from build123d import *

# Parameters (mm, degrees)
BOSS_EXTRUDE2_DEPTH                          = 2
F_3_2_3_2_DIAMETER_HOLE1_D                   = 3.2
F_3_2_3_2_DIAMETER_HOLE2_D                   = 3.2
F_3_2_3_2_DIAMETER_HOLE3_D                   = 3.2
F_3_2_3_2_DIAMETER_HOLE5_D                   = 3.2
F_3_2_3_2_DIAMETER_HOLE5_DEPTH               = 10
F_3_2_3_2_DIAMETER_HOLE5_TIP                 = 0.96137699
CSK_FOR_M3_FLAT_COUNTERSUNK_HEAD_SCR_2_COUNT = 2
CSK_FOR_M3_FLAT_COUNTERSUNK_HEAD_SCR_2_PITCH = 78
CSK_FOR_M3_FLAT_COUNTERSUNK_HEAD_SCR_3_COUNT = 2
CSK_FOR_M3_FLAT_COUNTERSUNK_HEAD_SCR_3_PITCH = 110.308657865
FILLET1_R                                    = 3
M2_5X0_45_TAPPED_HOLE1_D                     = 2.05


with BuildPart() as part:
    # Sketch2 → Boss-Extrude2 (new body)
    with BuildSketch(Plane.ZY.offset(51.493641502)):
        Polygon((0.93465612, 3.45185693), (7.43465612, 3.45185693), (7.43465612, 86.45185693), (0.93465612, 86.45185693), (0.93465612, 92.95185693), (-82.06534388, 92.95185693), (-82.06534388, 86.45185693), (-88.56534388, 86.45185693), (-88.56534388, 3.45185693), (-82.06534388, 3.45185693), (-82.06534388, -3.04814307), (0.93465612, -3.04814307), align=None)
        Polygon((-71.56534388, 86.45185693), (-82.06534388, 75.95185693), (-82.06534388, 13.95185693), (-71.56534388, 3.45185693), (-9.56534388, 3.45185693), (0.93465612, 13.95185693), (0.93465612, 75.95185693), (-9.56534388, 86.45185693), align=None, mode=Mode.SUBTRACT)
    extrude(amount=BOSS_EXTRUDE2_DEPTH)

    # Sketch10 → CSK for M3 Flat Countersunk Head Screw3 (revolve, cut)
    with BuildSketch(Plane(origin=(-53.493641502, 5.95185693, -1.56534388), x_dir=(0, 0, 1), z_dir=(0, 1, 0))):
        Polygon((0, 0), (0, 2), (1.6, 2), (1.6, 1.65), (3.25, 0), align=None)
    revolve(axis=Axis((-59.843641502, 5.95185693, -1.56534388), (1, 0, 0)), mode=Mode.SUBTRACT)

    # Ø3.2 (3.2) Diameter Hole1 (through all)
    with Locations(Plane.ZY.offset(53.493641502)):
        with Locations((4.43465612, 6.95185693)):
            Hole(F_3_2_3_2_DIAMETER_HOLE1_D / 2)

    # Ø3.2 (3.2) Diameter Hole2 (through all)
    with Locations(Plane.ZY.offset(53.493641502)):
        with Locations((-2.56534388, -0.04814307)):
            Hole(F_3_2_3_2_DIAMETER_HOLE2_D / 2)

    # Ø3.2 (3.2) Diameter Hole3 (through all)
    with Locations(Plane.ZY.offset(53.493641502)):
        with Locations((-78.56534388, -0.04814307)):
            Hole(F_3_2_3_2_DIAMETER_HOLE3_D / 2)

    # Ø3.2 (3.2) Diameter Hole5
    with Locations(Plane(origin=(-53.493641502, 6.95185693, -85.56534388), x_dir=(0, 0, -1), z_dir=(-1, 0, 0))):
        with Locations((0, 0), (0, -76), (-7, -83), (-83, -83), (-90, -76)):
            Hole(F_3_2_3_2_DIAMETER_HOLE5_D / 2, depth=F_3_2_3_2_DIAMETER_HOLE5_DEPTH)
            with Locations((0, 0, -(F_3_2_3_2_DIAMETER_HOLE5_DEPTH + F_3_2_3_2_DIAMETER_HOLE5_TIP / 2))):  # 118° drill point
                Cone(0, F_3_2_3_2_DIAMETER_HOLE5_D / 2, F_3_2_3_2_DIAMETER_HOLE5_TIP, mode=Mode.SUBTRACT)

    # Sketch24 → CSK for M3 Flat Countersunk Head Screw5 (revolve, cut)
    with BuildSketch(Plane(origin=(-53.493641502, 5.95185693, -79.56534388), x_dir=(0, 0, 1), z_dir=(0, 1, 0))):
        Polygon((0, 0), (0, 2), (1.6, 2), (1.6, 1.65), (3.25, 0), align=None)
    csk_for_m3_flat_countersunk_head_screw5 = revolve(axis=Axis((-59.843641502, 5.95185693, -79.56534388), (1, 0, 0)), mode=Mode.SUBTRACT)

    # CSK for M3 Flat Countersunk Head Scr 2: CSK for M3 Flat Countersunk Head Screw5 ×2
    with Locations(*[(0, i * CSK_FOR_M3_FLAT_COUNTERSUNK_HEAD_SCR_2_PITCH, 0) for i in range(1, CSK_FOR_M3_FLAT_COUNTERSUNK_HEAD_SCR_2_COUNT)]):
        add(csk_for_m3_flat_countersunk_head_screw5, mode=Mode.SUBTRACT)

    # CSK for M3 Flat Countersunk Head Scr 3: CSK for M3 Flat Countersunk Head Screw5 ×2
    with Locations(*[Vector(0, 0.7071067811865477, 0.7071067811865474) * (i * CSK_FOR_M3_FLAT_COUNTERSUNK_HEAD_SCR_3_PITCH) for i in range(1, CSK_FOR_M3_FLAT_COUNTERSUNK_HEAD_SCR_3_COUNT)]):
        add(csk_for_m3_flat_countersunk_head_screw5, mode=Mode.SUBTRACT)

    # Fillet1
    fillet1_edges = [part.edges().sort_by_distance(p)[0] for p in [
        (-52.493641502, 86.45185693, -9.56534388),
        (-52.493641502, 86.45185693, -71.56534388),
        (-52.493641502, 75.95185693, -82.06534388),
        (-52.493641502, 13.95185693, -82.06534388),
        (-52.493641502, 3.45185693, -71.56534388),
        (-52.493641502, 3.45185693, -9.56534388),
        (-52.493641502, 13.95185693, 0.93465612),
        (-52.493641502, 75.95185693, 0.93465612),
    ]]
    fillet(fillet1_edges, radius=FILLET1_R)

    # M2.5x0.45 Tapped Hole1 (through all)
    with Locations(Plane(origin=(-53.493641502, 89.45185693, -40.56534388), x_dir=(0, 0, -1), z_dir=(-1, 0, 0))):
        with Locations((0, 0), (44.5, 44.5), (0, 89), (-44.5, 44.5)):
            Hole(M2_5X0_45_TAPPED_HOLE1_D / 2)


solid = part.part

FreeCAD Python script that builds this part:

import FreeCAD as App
import Part
import Sketcher

V = App.Vector
Q = App.Units.Quantity


def edges_at(feature, points):
    """Names of the edges that pass closest to the given points."""
    edges = feature.Shape.Edges
    near = lambda p: min(range(len(edges)), key=lambda i: edges[i].distToShape(Part.Vertex(*p))[0])
    return sorted({f"Edge{near(p) + 1}" for p in points})

doc = App.newDocument("Part")
body = doc.addObject("PartDesign::Body", "Body")

sketch1 = doc.addObject("Sketcher::SketchObject", "Sketch")
body.addObject(sketch1)
sketch1.AttachmentSupport = (doc.YZ_Plane, [""])
sketch1.MapMode = "FlatFace"
sketch1.AttachmentOffset = App.Placement(V(0, 0, -51.493642), App.Rotation())
sketch1.addGeometry(Part.LineSegment(V(3, 1, 0), V(3, 7, 0)), False)
sketch1.addGeometry(Part.LineSegment(V(3, 7, 0), V(86, 7, 0)), False)
sketch1.addGeometry(Part.LineSegment(V(86, 7, 0), V(86, 1, 0)), False)
sketch1.addGeometry(Part.LineSegment(V(86, 1, 0), V(93, 1, 0)), False)
sketch1.addGeometry(Part.LineSegment(V(93, 1, 0), V(93, -82, 0)), False)
sketch1.addGeometry(Part.LineSegment(V(93, -82, 0), V(86, -82, 0)), False)
sketch1.addGeometry(Part.LineSegment(V(86, -82, 0), V(86, -89, 0)), False)
sketch1.addGeometry(Part.LineSegment(V(86, -89, 0), V(3, -89, 0)), False)
sketch1.addGeometry(Part.LineSegment(V(3, -89, 0), V(3, -82, 0)), False)
sketch1.addGeometry(Part.LineSegment(V(3, -82, 0), V(-3, -82, 0)), False)
sketch1.addGeometry(Part.LineSegment(V(-3, -82, 0), V(-3, 1, 0)), False)
sketch1.addGeometry(Part.LineSegment(V(-3, 1, 0), V(3, 1, 0)), False)
sketch1.addGeometry(Part.LineSegment(V(76, -82, 0), V(86, -72, 0)), False)
sketch1.addGeometry(Part.LineSegment(V(86, -72, 0), V(86, -10, 0)), False)
sketch1.addGeometry(Part.LineSegment(V(86, -10, 0), V(76, 1, 0)), False)
sketch1.addGeometry(Part.LineSegment(V(76, 1, 0), V(14, 1, 0)), False)
sketch1.addGeometry(Part.LineSegment(V(14, 1, 0), V(3, -10, 0)), False)
sketch1.addGeometry(Part.LineSegment(V(3, -10, 0), V(3, -72, 0)), False)
sketch1.addGeometry(Part.LineSegment(V(3, -72, 0), V(14, -82, 0)), False)
sketch1.addGeometry(Part.LineSegment(V(14, -82, 0), V(76, -82, 0)), False)
sketch1.addConstraint(Sketcher.Constraint("Coincident", 0, 2, 1, 1))
sketch1.addConstraint(Sketcher.Constraint("Coincident", 1, 2, 2, 1))
sketch1.addConstraint(Sketcher.Constraint("Coincident", 2, 2, 3, 1))
sketch1.addConstraint(Sketcher.Constraint("Coincident", 3, 2, 4, 1))
sketch1.addConstraint(Sketcher.Constraint("Coincident", 4, 2, 5, 1))
sketch1.addConstraint(Sketcher.Constraint("Coincident", 5, 2, 6, 1))
sketch1.addConstraint(Sketcher.Constraint("Coincident", 6, 2, 7, 1))
sketch1.addConstraint(Sketcher.Constraint("Coincident", 7, 2, 8, 1))
sketch1.addConstraint(Sketcher.Constraint("Coincident", 8, 2, 9, 1))
sketch1.addConstraint(Sketcher.Constraint("Coincident", 9, 2, 10, 1))
sketch1.addConstraint(Sketcher.Constraint("Coincident", 10, 2, 11, 1))
sketch1.addConstraint(Sketcher.Constraint("Coincident", 11, 2, 0, 1))
sketch1.addConstraint(Sketcher.Constraint("Coincident", 12, 2, 13, 1))
sketch1.addConstraint(Sketcher.Constraint("Coincident", 13, 2, 14, 1))
sketch1.addConstraint(Sketcher.Constraint("Coincident", 14, 2, 15, 1))
sketch1.addConstraint(Sketcher.Constraint("Coincident", 15, 2, 16, 1))
sketch1.addConstraint(Sketcher.Constraint("Coincident", 16, 2, 17, 1))
sketch1.addConstraint(Sketcher.Constraint("Coincident", 17, 2, 18, 1))
sketch1.addConstraint(Sketcher.Constraint("Coincident", 18, 2, 19, 1))
sketch1.addConstraint(Sketcher.Constraint("Coincident", 19, 2, 12, 1))
sketch1.addConstraint(Sketcher.Constraint("Vertical", 0))
sketch1.addConstraint(Sketcher.Constraint("Horizontal", 1))
sketch1.addConstraint(Sketcher.Constraint("Vertical", 2))
sketch1.addConstraint(Sketcher.Constraint("Horizontal", 3))
sketch1.addConstraint(Sketcher.Constraint("Vertical", 4))
sketch1.addConstraint(Sketcher.Constraint("Horizontal", 5))
sketch1.addConstraint(Sketcher.Constraint("Vertical", 6))
sketch1.addConstraint(Sketcher.Constraint("Horizontal", 7))
sketch1.addConstraint(Sketcher.Constraint("Vertical", 8))
sketch1.addConstraint(Sketcher.Constraint("Horizontal", 9))
sketch1.addConstraint(Sketcher.Constraint("Vertical", 10))
sketch1.addConstraint(Sketcher.Constraint("Horizontal", 11))
sketch1.addConstraint(Sketcher.Constraint("Vertical", 13))
sketch1.addConstraint(Sketcher.Constraint("Horizontal", 15))
sketch1.addConstraint(Sketcher.Constraint("Vertical", 17))
sketch1.addConstraint(Sketcher.Constraint("Horizontal", 19))
sketch1.addConstraint(Sketcher.Constraint("Perpendicular", 12, 14))
sketch1.addConstraint(Sketcher.Constraint("Perpendicular", 14, 16))
sketch1.addConstraint(Sketcher.Constraint("Perpendicular", 16, 18))
sketch1.addConstraint(Sketcher.Constraint("Horizontal", 5, 2, 8, 2))
sketch1.addConstraint(Sketcher.Constraint("Horizontal", 3, 2, 10, 2))
sketch1.addConstraint(Sketcher.Constraint("Horizontal", 11, 2, 14, 2))
sketch1.addConstraint(Sketcher.Constraint("Horizontal", 13, 2, 16, 2))
sketch1.addConstraint(Sketcher.Constraint("Horizontal", 12, 2, 17, 2))
sketch1.addConstraint(Sketcher.Constraint("Horizontal", 9, 2, 18, 2))
sketch1.addConstraint(Sketcher.Constraint("Vertical", 2, 2, 5, 2))
sketch1.addConstraint(Sketcher.Constraint("Vertical", 0, 2, 7, 2))
sketch1.addConstraint(Sketcher.Constraint("Vertical", 6, 2, 12, 2))
sketch1.addConstraint(Sketcher.Constraint("Vertical", 11, 2, 16, 2))
sketch1.addConstraint(Sketcher.Constraint("Vertical", 15, 2, 18, 2))
sketch1.addConstraint(Sketcher.Constraint("Vertical", 14, 2, 19, 2))
sketch1.addConstraint(Sketcher.Constraint("Equal", 5, 9))
sketch1.addConstraint(Sketcher.Constraint("Equal", 11, 0))
sketch1.addConstraint(Sketcher.Constraint("Equal", 7, 4))
sketch1.addConstraint(Sketcher.Constraint("Equal", 2, 6))
sketch1.addConstraint(Sketcher.Constraint("DistanceX", 1, 1, 1, 2, 83.0))
sketch1.addConstraint(Sketcher.Constraint("DistanceX", 15, 2, 15, 1, 62.0))
sketch1.addConstraint(Sketcher.Constraint("DistanceX", 3, 1, 3, 2, 6.5))
sketch1.addConstraint(Sketcher.Constraint("DistanceX", -1, 1, 0, 2, 3.451857))
sketch1.addConstraint(Sketcher.Constraint("DistanceY", -1, 1, 0, 2, 7.434656))
pad1 = doc.addObject("PartDesign::Pad", "Pad")
body.addObject(pad1)
pad1.Profile = sketch1
pad1.Length = 2
pad1.Reversed = True

sketch2 = doc.addObject("Sketcher::SketchObject", "Sketch001")
body.addObject(sketch2)
sketch2.AttachmentSupport = (doc.XZ_Plane, [""])
sketch2.MapMode = "FlatFace"
sketch2.AttachmentOffset = App.Placement(V(0, 0, -5.951857), App.Rotation())
sketch2.addGeometry(Part.LineSegment(V(-51.49, -1.57, 0), V(-53.49, -1.57, 0)), False)
sketch2.addGeometry(Part.LineSegment(V(-53.49, -1.57, 0), V(-53.49, 1.68, 0)), False)
sketch2.addGeometry(Part.LineSegment(V(-53.49, 1.68, 0), V(-51.84, 0.03, 0)), False)
sketch2.addGeometry(Part.LineSegment(V(-51.84, 0.03, 0), V(-51.49, 0.03, 0)), False)
sketch2.addGeometry(Part.LineSegment(V(-51.49, 0.03, 0), V(-51.49, -1.57, 0)), False)
sketch2.addGeometry(Part.LineSegment(V(-53.49, -1.57, 0), V(-51.49, -1.57, 0)), True)
sketch2.addConstraint(Sketcher.Constraint("Coincident", 0, 2, 1, 1))
sketch2.addConstraint(Sketcher.Constraint("Coincident", 1, 2, 2, 1))
sketch2.addConstraint(Sketcher.Constraint("Coincident", 2, 2, 3, 1))
sketch2.addConstraint(Sketcher.Constraint("Coincident", 3, 2, 4, 1))
sketch2.addConstraint(Sketcher.Constraint("Coincident", 4, 2, 0, 1))
sketch2.addConstraint(Sketcher.Constraint("Horizontal", 0))
sketch2.addConstraint(Sketcher.Constraint("Vertical", 1))
sketch2.addConstraint(Sketcher.Constraint("Horizontal", 3))
sketch2.addConstraint(Sketcher.Constraint("Vertical", 4))
sketch2.addConstraint(Sketcher.Constraint("Horizontal", 5))
sketch2.addConstraint(Sketcher.Constraint("Coincident", 5, 1, 0, 2))
sketch2.addConstraint(Sketcher.Constraint("Vertical", 3, 2, 5, 2))
sketch2.addConstraint(Sketcher.Constraint("DistanceX", 0, 2, 0, 1, 2.0))
sketch2.addConstraint(Sketcher.Constraint("Angle", 2, Q("-45 deg")))
sketch2.addConstraint(Sketcher.Constraint("DistanceY", 4, 2, 4, 1, 1.6))
sketch2.addConstraint(Sketcher.Constraint("DistanceX", 3, 1, 3, 2, 0.35))
sketch2.addConstraint(Sketcher.Constraint("DistanceX", 0, 2, -1, 1, 53.493642))
sketch2.addConstraint(Sketcher.Constraint("DistanceY", 0, 2, -1, 1, 1.565344))
groove = doc.addObject("PartDesign::Groove", "Groove")
body.addObject(groove)
groove.Profile = sketch2
groove.ReferenceAxis = (sketch2, ["Axis0"])
groove.Angle = 360

sketch3 = doc.addObject("Sketcher::SketchObject", "Sketch002")
body.addObject(sketch3)
sketch3.AttachmentSupport = (doc.YZ_Plane, [""])
sketch3.MapMode = "FlatFace"
sketch3.AttachmentOffset = App.Placement(V(0, 0, -53.493642), App.Rotation())
sketch3.addGeometry(Part.Circle(V(7, 4.4, 0), V(0, 0, 1), 1.6), False)
sketch3.addConstraint(Sketcher.Constraint("Diameter", 0, 3.2))
sketch3.addConstraint(Sketcher.Constraint("DistanceX", -1, 1, 0, 3, 6.951857))
sketch3.addConstraint(Sketcher.Constraint("DistanceY", -1, 1, 0, 3, 4.434656))
doc.recompute()
hole = doc.addObject("PartDesign::Hole", "Hole")
body.addObject(hole)
hole.Profile = sketch3
hole.ThreadType = "None"
hole.Diameter = 3.2
hole.DepthType = "ThroughAll"
hole.Reversed = True

sketch4 = doc.addObject("Sketcher::SketchObject", "Sketch003")
body.addObject(sketch4)
sketch4.AttachmentSupport = (doc.YZ_Plane, [""])
sketch4.MapMode = "FlatFace"
sketch4.AttachmentOffset = App.Placement(V(0, 0, -53.493642), App.Rotation())
sketch4.addGeometry(Part.Circle(V(0, -2.6, 0), V(0, 0, 1), 1.6), False)
sketch4.addConstraint(Sketcher.Constraint("Diameter", 0, 3.2))
sketch4.addConstraint(Sketcher.Constraint("DistanceX", 0, 3, -1, 1, 0.048143))
sketch4.addConstraint(Sketcher.Constraint("DistanceY", 0, 3, -1, 1, 2.565344))
doc.recompute()
hole2 = doc.addObject("PartDesign::Hole", "Hole001")
body.addObject(hole2)
hole2.Profile = sketch4
hole2.ThreadType = "None"
hole2.Diameter = 3.2
hole2.DepthType = "ThroughAll"
hole2.Reversed = True

sketch5 = doc.addObject("Sketcher::SketchObject", "Sketch004")
body.addObject(sketch5)
sketch5.AttachmentSupport = (doc.YZ_Plane, [""])
sketch5.MapMode = "FlatFace"
sketch5.AttachmentOffset = App.Placement(V(0, 0, -53.493642), App.Rotation())
sketch5.addGeometry(Part.Circle(V(0, -78.6, 0), V(0, 0, 1), 1.6), False)
sketch5.addConstraint(Sketcher.Constraint("Diameter", 0, 3.2))
sketch5.addConstraint(Sketcher.Constraint("DistanceX", 0, 3, -1, 1, 0.048143))
sketch5.addConstraint(Sketcher.Constraint("DistanceY", 0, 3, -1, 1, 78.565344))
doc.recompute()
hole3 = doc.addObject("PartDesign::Hole", "Hole002")
body.addObject(hole3)
hole3.Profile = sketch5
hole3.ThreadType = "None"
hole3.Diameter = 3.2
hole3.DepthType = "ThroughAll"
hole3.Reversed = True

sketch6 = doc.addObject("Sketcher::SketchObject", "Sketch005")
body.addObject(sketch6)
sketch6.AttachmentSupport = (doc.YZ_Plane, [""])
sketch6.MapMode = "FlatFace"
sketch6.AttachmentOffset = App.Placement(V(0, 0, -53.493642), App.Rotation())
sketch6.addGeometry(Part.Circle(V(7, -85.6, 0), V(0, 0, 1), 1.6), False)
sketch6.addGeometry(Part.Circle(V(83, -85.6, 0), V(0, 0, 1), 1.6), False)
sketch6.addGeometry(Part.Circle(V(90, -78.6, 0), V(0, 0, 1), 1.6), False)
sketch6.addGeometry(Part.Circle(V(90, -2.6, 0), V(0, 0, 1), 1.6), False)
sketch6.addGeometry(Part.Circle(V(83, 4.4, 0), V(0, 0, 1), 1.6), False)
sketch6.addConstraint(Sketcher.Constraint("Equal", 0, 1))
sketch6.addConstraint(Sketcher.Constraint("Equal", 1, 2))
sketch6.addConstraint(Sketcher.Constraint("Equal", 2, 3))
sketch6.addConstraint(Sketcher.Constraint("Equal", 3, 4))
sketch6.addConstraint(Sketcher.Constraint("Horizontal", 0, 3, 1, 3))
sketch6.addConstraint(Sketcher.Constraint("Vertical", 2, 3, 3, 3))
sketch6.addConstraint(Sketcher.Constraint("Vertical", 1, 3, 4, 3))
sketch6.addConstraint(Sketcher.Constraint("Diameter", 0, 3.2))
sketch6.addConstraint(Sketcher.Constraint("DistanceX", 0, 3, 1, 3, 76.0))
sketch6.addConstraint(Sketcher.Constraint("DistanceX", 1, 3, 2, 3, 7.0))
sketch6.addConstraint(Sketcher.Constraint("DistanceY", 1, 3, 2, 3, 7.0))
sketch6.addConstraint(Sketcher.Constraint("DistanceY", 2, 3, 3, 3, 76.0))
sketch6.addConstraint(Sketcher.Constraint("DistanceY", 3, 3, 4, 3, 7.0))
sketch6.addConstraint(Sketcher.Constraint("DistanceX", -1, 1, 0, 3, 6.951857))
sketch6.addConstraint(Sketcher.Constraint("DistanceY", 0, 3, -1, 1, 85.565344))
doc.recompute()
hole4 = doc.addObject("PartDesign::Hole", "Hole003")
body.addObject(hole4)
hole4.Profile = sketch6
hole4.ThreadType = "None"
hole4.Diameter = 3.2
hole4.DepthType = "Dimension"
hole4.Depth = 10
hole4.DrillPoint = "Angled"
hole4.DrillPointAngle = 118
hole4.Reversed = True

sketch7 = doc.addObject("Sketcher::SketchObject", "Sketch006")
body.addObject(sketch7)
sketch7.AttachmentSupport = (doc.XZ_Plane, [""])
sketch7.MapMode = "FlatFace"
sketch7.AttachmentOffset = App.Placement(V(0, 0, -5.951857), App.Rotation())
sketch7.addGeometry(Part.LineSegment(V(-51.49, -79.57, 0), V(-53.49, -79.57, 0)), False)
sketch7.addGeometry(Part.LineSegment(V(-53.49, -79.57, 0), V(-53.49, -76.32, 0)), False)
sketch7.addGeometry(Part.LineSegment(V(-53.49, -76.32, 0), V(-51.84, -77.97, 0)), False)
sketch7.addGeometry(Part.LineSegment(V(-51.84, -77.97, 0), V(-51.49, -77.97, 0)), False)
sketch7.addGeometry(Part.LineSegment(V(-51.49, -77.97, 0), V(-51.49, -79.57, 0)), False)
sketch7.addGeometry(Part.LineSegment(V(-53.49, -79.57, 0), V(-51.49, -79.57, 0)), True)
sketch7.addConstraint(Sketcher.Constraint("Coincident", 0, 2, 1, 1))
sketch7.addConstraint(Sketcher.Constraint("Coincident", 1, 2, 2, 1))
sketch7.addConstraint(Sketcher.Constraint("Coincident", 2, 2, 3, 1))
sketch7.addConstraint(Sketcher.Constraint("Coincident", 3, 2, 4, 1))
sketch7.addConstraint(Sketcher.Constraint("Coincident", 4, 2, 0, 1))
sketch7.addConstraint(Sketcher.Constraint("Horizontal", 0))
sketch7.addConstraint(Sketcher.Constraint("Vertical", 1))
sketch7.addConstraint(Sketcher.Constraint("Horizontal", 3))
sketch7.addConstraint(Sketcher.Constraint("Vertical", 4))
sketch7.addConstraint(Sketcher.Constraint("Horizontal", 5))
sketch7.addConstraint(Sketcher.Constraint("Coincident", 5, 1, 0, 2))
sketch7.addConstraint(Sketcher.Constraint("Vertical", 3, 2, 5, 2))
sketch7.addConstraint(Sketcher.Constraint("DistanceX", 0, 2, 0, 1, 2.0))
sketch7.addConstraint(Sketcher.Constraint("Angle", 2, Q("-45 deg")))
sketch7.addConstraint(Sketcher.Constraint("DistanceY", 4, 2, 4, 1, 1.6))
sketch7.addConstraint(Sketcher.Constraint("DistanceX", 3, 1, 3, 2, 0.35))
sketch7.addConstraint(Sketcher.Constraint("DistanceX", 0, 2, -1, 1, 53.493642))
sketch7.addConstraint(Sketcher.Constraint("DistanceY", 0, 2, -1, 1, 79.565344))
groove2 = doc.addObject("PartDesign::Groove", "Groove001")
body.addObject(groove2)
groove2.Profile = sketch7
groove2.ReferenceAxis = (sketch7, ["Axis0"])
groove2.Angle = 360
doc.recompute()

linearpattern = doc.addObject("PartDesign::LinearPattern", "LinearPattern")
body.addObject(linearpattern)
linearpattern.Originals = [groove2]
linearpattern.Direction = (doc.Y_Axis, [""])
linearpattern.Mode = "offset"
linearpattern.Offset = 78
linearpattern.Occurrences = 2
body.Tip = linearpattern
doc.recompute()

datumline = doc.addObject("PartDesign::Line", "DatumLine")
body.addObject(datumline)
datumline.Placement = App.Placement(V(0, 0, 0), App.Rotation(V(0, 0, 1), V(0, 0.707106781, 0.707106781)))
linearpattern2 = doc.addObject("PartDesign::LinearPattern", "LinearPattern001")
body.addObject(linearpattern2)
linearpattern2.Originals = [groove2]
linearpattern2.Direction = (datumline, [""])
linearpattern2.Mode = "offset"
linearpattern2.Offset = 110.308658
linearpattern2.Occurrences = 2
body.Tip = linearpattern2
doc.recompute()

fillet = doc.addObject("PartDesign::Fillet", "Fillet")
body.addObject(fillet)
fillet.Base = (linearpattern2, edges_at(linearpattern2, [
    (-52.494, 86.452, -9.565),
    (-52.494, 86.452, -71.565),
    (-52.494, 75.952, -82.065),
    (-52.494, 13.952, -82.065),
    (-52.494, 3.452, -71.565),
    (-52.494, 3.452, -9.565),
    (-52.494, 13.952, 0.935),
    (-52.494, 75.952, 0.935),
]))
fillet.Radius = 3

sketch8 = doc.addObject("Sketcher::SketchObject", "Sketch007")
body.addObject(sketch8)
sketch8.AttachmentSupport = (doc.YZ_Plane, [""])
sketch8.MapMode = "FlatFace"
sketch8.AttachmentOffset = App.Placement(V(0, 0, -53.493642), App.Rotation())
sketch8.addGeometry(Part.Circle(V(89.5, -40.6, 0), V(0, 0, 1), 1), False)
sketch8.addGeometry(Part.Circle(V(45, -85.1, 0), V(0, 0, 1), 1), False)
sketch8.addGeometry(Part.Circle(V(0.5, -40.6, 0), V(0, 0, 1), 1), False)
sketch8.addGeometry(Part.Circle(V(45, 3.9, 0), V(0, 0, 1), 1), False)
sketch8.addConstraint(Sketcher.Constraint("Equal", 0, 1))
sketch8.addConstraint(Sketcher.Constraint("Equal", 1, 2))
sketch8.addConstraint(Sketcher.Constraint("Equal", 2, 3))
sketch8.addConstraint(Sketcher.Constraint("Horizontal", 0, 3, 2, 3))
sketch8.addConstraint(Sketcher.Constraint("Vertical", 1, 3, 3, 3))
sketch8.addConstraint(Sketcher.Constraint("Diameter", 0, 2.05))
sketch8.addConstraint(Sketcher.Constraint("DistanceX", 2, 3, 0, 3, 89.0))
sketch8.addConstraint(Sketcher.Constraint("DistanceY", 1, 3, 3, 3, 89.0))
sketch8.addConstraint(Sketcher.Constraint("DistanceX", 1, 3, 0, 3, 44.5))
sketch8.addConstraint(Sketcher.Constraint("DistanceY", 1, 3, 0, 3, 44.5))
sketch8.addConstraint(Sketcher.Constraint("DistanceX", -1, 1, 0, 3, 89.451857))
sketch8.addConstraint(Sketcher.Constraint("DistanceY", 0, 3, -1, 1, 40.565344))
doc.recompute()
hole5 = doc.addObject("PartDesign::Hole", "Hole004")
body.addObject(hole5)
hole5.Profile = sketch8
hole5.ThreadType = "None"
hole5.Diameter = 2.05
hole5.DepthType = "ThroughAll"
hole5.Reversed = True

doc.recompute()
